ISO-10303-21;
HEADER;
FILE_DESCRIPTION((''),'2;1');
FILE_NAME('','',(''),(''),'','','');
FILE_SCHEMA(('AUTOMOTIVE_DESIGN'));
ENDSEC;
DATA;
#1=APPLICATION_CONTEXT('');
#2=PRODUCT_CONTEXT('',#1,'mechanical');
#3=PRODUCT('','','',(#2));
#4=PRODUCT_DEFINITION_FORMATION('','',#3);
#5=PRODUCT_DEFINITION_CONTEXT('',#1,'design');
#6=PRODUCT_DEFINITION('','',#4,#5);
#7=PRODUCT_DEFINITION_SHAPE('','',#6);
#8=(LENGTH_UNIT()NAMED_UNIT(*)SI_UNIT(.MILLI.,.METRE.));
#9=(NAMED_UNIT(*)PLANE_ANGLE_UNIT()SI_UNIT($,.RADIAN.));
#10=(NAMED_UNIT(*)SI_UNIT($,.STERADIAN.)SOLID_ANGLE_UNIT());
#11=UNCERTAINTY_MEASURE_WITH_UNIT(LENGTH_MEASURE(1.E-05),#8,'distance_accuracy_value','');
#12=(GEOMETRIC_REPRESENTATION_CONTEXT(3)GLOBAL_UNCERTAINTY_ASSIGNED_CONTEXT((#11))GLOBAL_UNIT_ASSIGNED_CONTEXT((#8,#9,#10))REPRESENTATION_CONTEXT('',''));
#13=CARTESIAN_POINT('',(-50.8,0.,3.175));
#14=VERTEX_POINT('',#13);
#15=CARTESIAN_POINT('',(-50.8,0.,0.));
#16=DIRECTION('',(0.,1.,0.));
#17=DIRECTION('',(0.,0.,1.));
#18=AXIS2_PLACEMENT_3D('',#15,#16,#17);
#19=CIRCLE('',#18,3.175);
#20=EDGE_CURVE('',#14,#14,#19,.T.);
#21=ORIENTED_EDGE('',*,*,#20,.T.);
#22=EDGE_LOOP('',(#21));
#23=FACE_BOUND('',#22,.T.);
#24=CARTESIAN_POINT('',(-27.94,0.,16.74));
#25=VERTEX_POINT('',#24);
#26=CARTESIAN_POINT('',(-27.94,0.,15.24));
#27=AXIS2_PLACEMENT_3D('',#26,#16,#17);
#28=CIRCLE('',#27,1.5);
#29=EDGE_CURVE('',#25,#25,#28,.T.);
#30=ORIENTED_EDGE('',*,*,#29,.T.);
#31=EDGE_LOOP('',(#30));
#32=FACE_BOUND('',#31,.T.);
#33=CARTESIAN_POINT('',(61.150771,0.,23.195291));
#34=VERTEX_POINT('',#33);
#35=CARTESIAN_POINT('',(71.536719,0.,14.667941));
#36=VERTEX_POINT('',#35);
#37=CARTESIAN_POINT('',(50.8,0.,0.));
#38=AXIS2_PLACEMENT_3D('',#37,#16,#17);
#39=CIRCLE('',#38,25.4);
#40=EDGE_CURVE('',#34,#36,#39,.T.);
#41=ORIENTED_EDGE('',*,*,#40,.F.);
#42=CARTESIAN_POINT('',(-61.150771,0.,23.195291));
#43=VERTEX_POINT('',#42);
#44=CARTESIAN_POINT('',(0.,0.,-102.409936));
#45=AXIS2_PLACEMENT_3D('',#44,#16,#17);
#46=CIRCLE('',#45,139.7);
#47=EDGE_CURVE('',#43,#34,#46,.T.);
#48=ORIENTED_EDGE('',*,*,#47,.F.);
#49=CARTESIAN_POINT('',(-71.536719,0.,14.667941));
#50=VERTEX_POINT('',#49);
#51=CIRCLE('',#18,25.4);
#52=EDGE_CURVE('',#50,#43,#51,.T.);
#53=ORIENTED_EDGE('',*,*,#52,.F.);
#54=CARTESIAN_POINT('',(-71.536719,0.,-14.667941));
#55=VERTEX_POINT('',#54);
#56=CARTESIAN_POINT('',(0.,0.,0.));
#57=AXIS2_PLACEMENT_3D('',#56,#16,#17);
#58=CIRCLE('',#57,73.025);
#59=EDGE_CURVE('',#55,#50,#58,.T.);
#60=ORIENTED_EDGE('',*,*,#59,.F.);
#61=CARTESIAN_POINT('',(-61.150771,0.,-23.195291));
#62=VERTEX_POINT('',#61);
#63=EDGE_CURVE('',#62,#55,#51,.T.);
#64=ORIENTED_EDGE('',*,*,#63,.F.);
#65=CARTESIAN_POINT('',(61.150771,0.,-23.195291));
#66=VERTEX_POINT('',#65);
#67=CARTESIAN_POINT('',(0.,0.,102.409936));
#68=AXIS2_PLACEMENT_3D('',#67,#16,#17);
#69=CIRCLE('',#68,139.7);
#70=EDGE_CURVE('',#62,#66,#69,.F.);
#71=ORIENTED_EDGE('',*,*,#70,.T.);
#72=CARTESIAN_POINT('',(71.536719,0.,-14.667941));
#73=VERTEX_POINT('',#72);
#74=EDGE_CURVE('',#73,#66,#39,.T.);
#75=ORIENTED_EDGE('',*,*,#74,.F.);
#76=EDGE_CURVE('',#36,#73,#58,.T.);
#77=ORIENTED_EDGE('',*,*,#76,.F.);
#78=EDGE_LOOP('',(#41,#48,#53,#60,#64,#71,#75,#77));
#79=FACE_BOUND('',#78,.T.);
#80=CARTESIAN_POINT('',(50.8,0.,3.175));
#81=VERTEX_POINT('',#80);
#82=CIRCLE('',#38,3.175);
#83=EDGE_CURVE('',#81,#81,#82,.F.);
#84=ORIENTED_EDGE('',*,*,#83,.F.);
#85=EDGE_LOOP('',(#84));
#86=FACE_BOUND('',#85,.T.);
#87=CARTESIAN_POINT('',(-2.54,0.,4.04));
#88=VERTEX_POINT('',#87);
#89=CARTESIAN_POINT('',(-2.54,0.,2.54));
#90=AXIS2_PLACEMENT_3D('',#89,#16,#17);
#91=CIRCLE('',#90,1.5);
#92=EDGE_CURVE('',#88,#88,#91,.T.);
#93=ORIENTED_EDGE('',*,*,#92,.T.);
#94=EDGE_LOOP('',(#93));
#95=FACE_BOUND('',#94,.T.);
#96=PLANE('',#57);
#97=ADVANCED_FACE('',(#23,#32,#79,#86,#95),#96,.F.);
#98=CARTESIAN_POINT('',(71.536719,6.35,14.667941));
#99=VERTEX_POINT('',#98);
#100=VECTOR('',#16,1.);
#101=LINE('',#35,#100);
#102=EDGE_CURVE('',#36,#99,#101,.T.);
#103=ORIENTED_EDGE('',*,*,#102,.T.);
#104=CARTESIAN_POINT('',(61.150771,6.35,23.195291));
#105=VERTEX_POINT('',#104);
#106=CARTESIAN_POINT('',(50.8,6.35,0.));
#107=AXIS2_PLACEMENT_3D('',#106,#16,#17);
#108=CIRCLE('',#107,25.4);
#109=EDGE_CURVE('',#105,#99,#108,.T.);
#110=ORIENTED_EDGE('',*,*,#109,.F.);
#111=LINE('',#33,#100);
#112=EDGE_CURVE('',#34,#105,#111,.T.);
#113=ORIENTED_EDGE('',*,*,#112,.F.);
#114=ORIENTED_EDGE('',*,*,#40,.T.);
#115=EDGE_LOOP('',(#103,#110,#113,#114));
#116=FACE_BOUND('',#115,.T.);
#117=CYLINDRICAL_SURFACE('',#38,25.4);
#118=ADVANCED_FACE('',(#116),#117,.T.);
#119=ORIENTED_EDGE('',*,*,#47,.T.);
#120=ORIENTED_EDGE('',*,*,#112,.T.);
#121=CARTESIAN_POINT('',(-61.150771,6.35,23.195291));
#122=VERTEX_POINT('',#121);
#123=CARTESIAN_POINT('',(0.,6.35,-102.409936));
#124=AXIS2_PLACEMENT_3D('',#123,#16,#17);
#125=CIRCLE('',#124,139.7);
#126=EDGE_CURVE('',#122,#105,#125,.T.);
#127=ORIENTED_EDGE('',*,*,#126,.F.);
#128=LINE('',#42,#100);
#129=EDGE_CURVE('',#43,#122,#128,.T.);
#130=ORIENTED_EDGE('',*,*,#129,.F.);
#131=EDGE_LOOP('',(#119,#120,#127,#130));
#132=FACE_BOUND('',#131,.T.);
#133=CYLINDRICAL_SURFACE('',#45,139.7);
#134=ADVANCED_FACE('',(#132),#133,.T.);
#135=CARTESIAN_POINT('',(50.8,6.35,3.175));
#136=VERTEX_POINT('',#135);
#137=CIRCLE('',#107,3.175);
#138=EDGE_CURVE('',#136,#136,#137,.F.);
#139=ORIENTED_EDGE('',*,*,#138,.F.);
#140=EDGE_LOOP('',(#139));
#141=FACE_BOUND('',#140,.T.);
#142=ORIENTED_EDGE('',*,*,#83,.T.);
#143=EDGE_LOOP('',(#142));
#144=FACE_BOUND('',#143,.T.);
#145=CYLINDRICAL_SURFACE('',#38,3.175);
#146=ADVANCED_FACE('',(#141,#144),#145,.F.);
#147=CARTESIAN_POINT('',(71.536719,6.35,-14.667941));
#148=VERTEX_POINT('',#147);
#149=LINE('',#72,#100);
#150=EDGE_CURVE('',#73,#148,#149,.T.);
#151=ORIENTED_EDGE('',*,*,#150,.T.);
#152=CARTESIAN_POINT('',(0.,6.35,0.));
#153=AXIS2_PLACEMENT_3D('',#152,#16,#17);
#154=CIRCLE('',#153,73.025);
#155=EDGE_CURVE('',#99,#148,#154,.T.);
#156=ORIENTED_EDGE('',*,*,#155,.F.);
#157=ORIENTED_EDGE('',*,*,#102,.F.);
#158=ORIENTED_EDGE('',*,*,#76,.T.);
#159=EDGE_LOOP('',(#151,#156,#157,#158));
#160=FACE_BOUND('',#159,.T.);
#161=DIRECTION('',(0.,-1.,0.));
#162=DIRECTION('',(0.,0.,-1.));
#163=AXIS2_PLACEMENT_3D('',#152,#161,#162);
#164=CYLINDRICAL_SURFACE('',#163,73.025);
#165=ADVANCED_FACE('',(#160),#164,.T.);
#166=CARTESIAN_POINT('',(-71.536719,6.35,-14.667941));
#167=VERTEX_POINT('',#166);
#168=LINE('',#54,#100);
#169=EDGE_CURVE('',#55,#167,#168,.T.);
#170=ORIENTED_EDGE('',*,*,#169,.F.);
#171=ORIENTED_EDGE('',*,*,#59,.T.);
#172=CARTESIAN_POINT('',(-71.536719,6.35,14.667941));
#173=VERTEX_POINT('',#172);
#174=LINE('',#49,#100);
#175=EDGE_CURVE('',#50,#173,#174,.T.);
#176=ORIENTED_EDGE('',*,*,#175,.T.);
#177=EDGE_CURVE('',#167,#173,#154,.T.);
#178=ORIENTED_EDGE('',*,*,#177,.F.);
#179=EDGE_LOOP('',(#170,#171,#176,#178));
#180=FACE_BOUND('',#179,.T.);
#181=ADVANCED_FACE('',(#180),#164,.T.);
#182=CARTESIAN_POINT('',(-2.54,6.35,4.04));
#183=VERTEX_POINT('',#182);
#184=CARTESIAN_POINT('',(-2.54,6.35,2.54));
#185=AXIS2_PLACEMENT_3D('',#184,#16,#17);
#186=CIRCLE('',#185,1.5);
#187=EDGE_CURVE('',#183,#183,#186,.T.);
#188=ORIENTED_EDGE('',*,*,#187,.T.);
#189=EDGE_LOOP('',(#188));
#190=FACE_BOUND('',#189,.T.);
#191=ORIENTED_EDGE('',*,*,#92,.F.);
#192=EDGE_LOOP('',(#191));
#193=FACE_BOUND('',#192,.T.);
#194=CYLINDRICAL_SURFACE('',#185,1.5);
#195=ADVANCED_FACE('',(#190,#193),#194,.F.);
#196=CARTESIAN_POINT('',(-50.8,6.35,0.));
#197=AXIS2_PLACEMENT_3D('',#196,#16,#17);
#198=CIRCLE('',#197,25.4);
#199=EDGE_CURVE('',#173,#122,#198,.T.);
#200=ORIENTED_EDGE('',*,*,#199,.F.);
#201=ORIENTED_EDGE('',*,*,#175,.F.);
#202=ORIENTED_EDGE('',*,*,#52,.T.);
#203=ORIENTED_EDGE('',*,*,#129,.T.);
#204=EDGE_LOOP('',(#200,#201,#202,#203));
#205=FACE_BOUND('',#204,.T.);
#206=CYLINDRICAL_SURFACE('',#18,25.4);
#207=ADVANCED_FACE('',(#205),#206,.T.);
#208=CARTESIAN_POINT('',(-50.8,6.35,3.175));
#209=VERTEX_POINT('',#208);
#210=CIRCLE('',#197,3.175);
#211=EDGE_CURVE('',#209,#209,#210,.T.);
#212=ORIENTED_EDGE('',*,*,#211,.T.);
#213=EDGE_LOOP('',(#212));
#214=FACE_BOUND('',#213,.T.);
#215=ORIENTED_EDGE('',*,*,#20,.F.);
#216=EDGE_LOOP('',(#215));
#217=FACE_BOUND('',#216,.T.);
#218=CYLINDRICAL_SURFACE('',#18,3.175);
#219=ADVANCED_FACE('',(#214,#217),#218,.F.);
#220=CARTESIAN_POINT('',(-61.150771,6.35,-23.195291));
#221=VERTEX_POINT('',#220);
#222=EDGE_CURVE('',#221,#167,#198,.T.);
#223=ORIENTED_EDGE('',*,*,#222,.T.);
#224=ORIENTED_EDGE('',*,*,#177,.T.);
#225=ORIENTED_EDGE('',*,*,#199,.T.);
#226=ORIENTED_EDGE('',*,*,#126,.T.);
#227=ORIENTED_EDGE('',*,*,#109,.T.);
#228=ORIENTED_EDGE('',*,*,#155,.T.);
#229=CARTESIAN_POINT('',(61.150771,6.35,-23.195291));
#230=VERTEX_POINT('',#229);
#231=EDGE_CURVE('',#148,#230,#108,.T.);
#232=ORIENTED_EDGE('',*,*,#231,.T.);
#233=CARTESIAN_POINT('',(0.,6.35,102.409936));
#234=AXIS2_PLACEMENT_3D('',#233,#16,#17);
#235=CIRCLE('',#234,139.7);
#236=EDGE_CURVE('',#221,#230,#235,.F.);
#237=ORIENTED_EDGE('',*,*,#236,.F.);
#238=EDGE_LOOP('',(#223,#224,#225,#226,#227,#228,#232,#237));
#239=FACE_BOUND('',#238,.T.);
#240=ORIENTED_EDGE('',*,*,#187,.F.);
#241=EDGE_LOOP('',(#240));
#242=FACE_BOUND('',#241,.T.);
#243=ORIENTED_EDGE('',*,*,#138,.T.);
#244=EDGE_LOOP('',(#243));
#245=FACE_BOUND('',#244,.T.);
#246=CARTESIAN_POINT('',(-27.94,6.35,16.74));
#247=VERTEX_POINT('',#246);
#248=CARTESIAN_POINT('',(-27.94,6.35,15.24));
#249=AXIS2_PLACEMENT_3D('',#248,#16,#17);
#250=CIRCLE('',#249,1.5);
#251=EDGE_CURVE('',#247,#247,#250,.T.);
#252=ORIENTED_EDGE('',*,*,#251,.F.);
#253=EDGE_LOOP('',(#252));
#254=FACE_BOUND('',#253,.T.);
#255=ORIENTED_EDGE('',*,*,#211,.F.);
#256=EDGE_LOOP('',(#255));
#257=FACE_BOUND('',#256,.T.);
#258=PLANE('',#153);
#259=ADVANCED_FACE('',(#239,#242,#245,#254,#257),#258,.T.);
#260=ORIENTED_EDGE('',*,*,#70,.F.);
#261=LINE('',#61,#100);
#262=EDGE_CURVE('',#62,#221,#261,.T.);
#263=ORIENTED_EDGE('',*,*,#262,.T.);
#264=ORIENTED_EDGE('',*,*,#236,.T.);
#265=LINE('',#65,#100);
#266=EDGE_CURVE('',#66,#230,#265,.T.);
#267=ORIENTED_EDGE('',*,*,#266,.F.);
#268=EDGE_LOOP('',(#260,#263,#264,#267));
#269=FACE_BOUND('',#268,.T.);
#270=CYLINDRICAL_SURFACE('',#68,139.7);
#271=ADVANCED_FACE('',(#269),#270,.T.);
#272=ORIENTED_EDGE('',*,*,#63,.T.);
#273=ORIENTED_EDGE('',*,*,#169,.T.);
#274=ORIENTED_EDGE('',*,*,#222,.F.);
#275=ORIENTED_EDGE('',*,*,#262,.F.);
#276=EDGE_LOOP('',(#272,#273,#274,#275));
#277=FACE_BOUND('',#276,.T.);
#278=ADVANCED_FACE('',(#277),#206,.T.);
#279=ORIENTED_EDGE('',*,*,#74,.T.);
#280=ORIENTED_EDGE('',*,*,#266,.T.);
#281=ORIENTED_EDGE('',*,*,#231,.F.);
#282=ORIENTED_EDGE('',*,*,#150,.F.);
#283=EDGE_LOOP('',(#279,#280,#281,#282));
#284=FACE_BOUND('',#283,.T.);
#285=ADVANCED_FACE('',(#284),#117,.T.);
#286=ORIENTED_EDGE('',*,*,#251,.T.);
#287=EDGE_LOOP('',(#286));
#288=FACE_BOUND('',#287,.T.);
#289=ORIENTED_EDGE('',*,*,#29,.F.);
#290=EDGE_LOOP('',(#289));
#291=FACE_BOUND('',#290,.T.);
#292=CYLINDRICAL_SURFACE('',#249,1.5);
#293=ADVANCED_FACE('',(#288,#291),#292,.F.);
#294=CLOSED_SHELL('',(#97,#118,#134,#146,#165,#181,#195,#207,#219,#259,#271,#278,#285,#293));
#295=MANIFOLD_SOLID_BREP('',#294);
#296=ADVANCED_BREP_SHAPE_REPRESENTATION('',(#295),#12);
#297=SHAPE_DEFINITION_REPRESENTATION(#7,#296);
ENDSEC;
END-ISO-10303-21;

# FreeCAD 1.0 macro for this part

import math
import FreeCAD as App
import Part
import Sketcher

V = App.Vector
Q = App.Units.Quantity

doc = App.newDocument("Part")
body = doc.addObject("PartDesign::Body", "Body")

# Sketch on XZ plane
sketch1 = doc.addObject("Sketcher::SketchObject", "Sketch")
body.addObject(sketch1)
sketch1.AttachmentSupport = (doc.XZ_Plane, [""])
sketch1.MapMode = "FlatFace"
sketch1.addGeometry(Part.Circle(V(0, 0, 0), V(0, 0, 1), 73.025), False)
sketch1.addConstraint(Sketcher.Constraint("Coincident", 0, 3, -1, 1))
sketch1.addConstraint(Sketcher.Constraint("Diameter", 0, Q("5.75 in")))
pad1 = doc.addObject("PartDesign::Pad", "Pad")
body.addObject(pad1)
pad1.Profile = sketch1
pad1.Length = Q("0.25 in")
pad1.Reversed = True

# Sketch on XZ plane
sketch2 = doc.addObject("Sketcher::SketchObject", "Sketch001")
body.addObject(sketch2)
sketch2.AttachmentSupport = (doc.XZ_Plane, [""])
sketch2.MapMode = "FlatFace"
sketch2.addGeometry(Part.ArcOfCircle(Part.Circle(V(0, -102.409936, 0), V(0, 0, 1), 139.7), math.radians(64.040915), math.radians(115.959085)), False)
sketch2.addGeometry(Part.ArcOfCircle(Part.Circle(V(-50.8, 0, 0), V(0, 0, 1), 25.4), math.radians(114.048554), math.radians(144.726647)), False)
sketch2.addGeometry(Part.ArcOfCircle(Part.Circle(V(0, 0, 0), V(0, 0, 1), 73.025), math.radians(11.587366), math.radians(168.412634)), False)
sketch2.addGeometry(Part.ArcOfCircle(Part.Circle(V(50.8, 0, 0), V(0, 0, 1), 25.4), math.radians(35.273353), math.radians(65.951446)), False)
sketch2.addGeometry(Part.ArcOfCircle(Part.Circle(V(0, 102.409936, 0), V(0, 0, 1), 139.7), math.radians(-115.959085), math.radians(-64.040915)), False)
sketch2.addGeometry(Part.ArcOfCircle(Part.Circle(V(50.8, 0, 0), V(0, 0, 1), 25.4), math.radians(-65.951446), math.radians(-35.273353)), False)
sketch2.addGeometry(Part.ArcOfCircle(Part.Circle(V(0, 0, 0), V(0, 0, 1), 73.025), math.radians(-168.412634), math.radians(-11.587366)), False)
sketch2.addGeometry(Part.ArcOfCircle(Part.Circle(V(-50.8, 0, 0), V(0, 0, 1), 25.4), math.radians(-144.726647), math.radians(-114.048554)), False)
sketch2.addGeometry(Part.Circle(V(-50.8, 0, 0), V(0, 0, 1), 3.175), False)
sketch2.addGeometry(Part.Circle(V(50.8, 0, 0), V(0, 0, 1), 3.175), False)
sketch2.addConstraint(Sketcher.Constraint("Coincident", 0, 2, 1, 1))
sketch2.addConstraint(Sketcher.Constraint("Coincident", 1, 2, 2, 2))
sketch2.addConstraint(Sketcher.Constraint("Coincident", 2, 1, 3, 1))
sketch2.addConstraint(Sketcher.Constraint("Coincident", 3, 2, 0, 1))
sketch2.addConstraint(Sketcher.Constraint("Coincident", 4, 2, 5, 1))
sketch2.addConstraint(Sketcher.Constraint("Coincident", 5, 2, 6, 2))
sketch2.addConstraint(Sketcher.Constraint("Coincident", 6, 1, 7, 1))
sketch2.addConstraint(Sketcher.Constraint("Coincident", 7, 2, 4, 1))
sketch2.addConstraint(Sketcher.Constraint("Coincident", 2, 3, -1, 1))
sketch2.addConstraint(Sketcher.Constraint("Coincident", 6, 3, -1, 1))
sketch2.addConstraint(Sketcher.Constraint("Coincident", 5, 3, 3, 3))
sketch2.addConstraint(Sketcher.Constraint("Coincident", 7, 3, 1, 3))
sketch2.addConstraint(Sketcher.Constraint("Coincident", 8, 3, 1, 3))
sketch2.addConstraint(Sketcher.Constraint("Coincident", 9, 3, 3, 3))
sketch2.addConstraint(Sketcher.Constraint("Equal", 1, 3))
sketch2.addConstraint(Sketcher.Constraint("Equal", 0, 4))
sketch2.addConstraint(Sketcher.Constraint("Equal", 3, 5))
sketch2.addConstraint(Sketcher.Constraint("Equal", 2, 6))
sketch2.addConstraint(Sketcher.Constraint("Equal", 5, 7))
sketch2.addConstraint(Sketcher.Constraint("Equal", 8, 9))
sketch2.addConstraint(Sketcher.Constraint("Symmetric", 1, 3, 3, 3, -1, 1))
sketch2.addConstraint(Sketcher.Constraint("Symmetric", 0, 3, 4, 3, -1, 1))
sketch2.addConstraint(Sketcher.Constraint("Symmetric", 0, 2, 3, 2, -2))
sketch2.addConstraint(Sketcher.Constraint("Radius", 1, Q("1 in")))
sketch2.addConstraint(Sketcher.Constraint("Radius", 0, Q("5.5 in")))
sketch2.addConstraint(Sketcher.Constraint("Diameter", 8, Q("0.25 in")))
sketch2.addConstraint(Sketcher.Constraint("DistanceX", 1, 3, -1, 1, Q("2 in")))
sketch2.addConstraint(Sketcher.Constraint("Radius", 2, Q("2.875 in")))
sketch2.addConstraint(Sketcher.Constraint("DistanceX", 0, 2, -1, 1, Q("61.150771 mm")))
pocket1 = doc.addObject("PartDesign::Pocket", "Pocket")
body.addObject(pocket1)
pocket1.Profile = sketch2
pocket1.Length = Q("0.25 in")

# Sketch on XZ plane
sketch3 = doc.addObject("Sketcher::SketchObject", "Sketch002")
body.addObject(sketch3)
sketch3.AttachmentSupport = (doc.XZ_Plane, [""])
sketch3.MapMode = "FlatFace"
sketch3.AttachmentOffset = App.Placement(V(0, 0, -0.25 * 25.4), App.Rotation())
sketch3.addGeometry(Part.Circle(V(-27.94, 15.24, 0), V(0, 0, 1), 1.5), False)
sketch3.addGeometry(Part.Circle(V(-2.54, 2.54, 0), V(0, 0, 1), 1.5), False)
sketch3.addConstraint(Sketcher.Constraint("Equal", 0, 1))
sketch3.addConstraint(Sketcher.Constraint("DistanceX", 0, 3, 1, 3, Q("1 in")))
sketch3.addConstraint(Sketcher.Constraint("DistanceX", 0, 3, -1, 1, Q("1.1 in")))
sketch3.addConstraint(Sketcher.Constraint("DistanceY", -1, 1, 0, 3, Q("0.6 in")))
sketch3.addConstraint(Sketcher.Constraint("DistanceY", -1, 1, 1, 3, Q("0.1 in")))
sketch3.addConstraint(Sketcher.Constraint("Diameter", 0, Q("3 mm")))
doc.recompute()
hole = doc.addObject("PartDesign::Hole", "Hole")
body.addObject(hole)
hole.Profile = sketch3
hole.ThreadType = "None"
hole.Diameter = 3
hole.DepthType = "ThroughAll"
hole.Reversed = True

doc.recompute()
